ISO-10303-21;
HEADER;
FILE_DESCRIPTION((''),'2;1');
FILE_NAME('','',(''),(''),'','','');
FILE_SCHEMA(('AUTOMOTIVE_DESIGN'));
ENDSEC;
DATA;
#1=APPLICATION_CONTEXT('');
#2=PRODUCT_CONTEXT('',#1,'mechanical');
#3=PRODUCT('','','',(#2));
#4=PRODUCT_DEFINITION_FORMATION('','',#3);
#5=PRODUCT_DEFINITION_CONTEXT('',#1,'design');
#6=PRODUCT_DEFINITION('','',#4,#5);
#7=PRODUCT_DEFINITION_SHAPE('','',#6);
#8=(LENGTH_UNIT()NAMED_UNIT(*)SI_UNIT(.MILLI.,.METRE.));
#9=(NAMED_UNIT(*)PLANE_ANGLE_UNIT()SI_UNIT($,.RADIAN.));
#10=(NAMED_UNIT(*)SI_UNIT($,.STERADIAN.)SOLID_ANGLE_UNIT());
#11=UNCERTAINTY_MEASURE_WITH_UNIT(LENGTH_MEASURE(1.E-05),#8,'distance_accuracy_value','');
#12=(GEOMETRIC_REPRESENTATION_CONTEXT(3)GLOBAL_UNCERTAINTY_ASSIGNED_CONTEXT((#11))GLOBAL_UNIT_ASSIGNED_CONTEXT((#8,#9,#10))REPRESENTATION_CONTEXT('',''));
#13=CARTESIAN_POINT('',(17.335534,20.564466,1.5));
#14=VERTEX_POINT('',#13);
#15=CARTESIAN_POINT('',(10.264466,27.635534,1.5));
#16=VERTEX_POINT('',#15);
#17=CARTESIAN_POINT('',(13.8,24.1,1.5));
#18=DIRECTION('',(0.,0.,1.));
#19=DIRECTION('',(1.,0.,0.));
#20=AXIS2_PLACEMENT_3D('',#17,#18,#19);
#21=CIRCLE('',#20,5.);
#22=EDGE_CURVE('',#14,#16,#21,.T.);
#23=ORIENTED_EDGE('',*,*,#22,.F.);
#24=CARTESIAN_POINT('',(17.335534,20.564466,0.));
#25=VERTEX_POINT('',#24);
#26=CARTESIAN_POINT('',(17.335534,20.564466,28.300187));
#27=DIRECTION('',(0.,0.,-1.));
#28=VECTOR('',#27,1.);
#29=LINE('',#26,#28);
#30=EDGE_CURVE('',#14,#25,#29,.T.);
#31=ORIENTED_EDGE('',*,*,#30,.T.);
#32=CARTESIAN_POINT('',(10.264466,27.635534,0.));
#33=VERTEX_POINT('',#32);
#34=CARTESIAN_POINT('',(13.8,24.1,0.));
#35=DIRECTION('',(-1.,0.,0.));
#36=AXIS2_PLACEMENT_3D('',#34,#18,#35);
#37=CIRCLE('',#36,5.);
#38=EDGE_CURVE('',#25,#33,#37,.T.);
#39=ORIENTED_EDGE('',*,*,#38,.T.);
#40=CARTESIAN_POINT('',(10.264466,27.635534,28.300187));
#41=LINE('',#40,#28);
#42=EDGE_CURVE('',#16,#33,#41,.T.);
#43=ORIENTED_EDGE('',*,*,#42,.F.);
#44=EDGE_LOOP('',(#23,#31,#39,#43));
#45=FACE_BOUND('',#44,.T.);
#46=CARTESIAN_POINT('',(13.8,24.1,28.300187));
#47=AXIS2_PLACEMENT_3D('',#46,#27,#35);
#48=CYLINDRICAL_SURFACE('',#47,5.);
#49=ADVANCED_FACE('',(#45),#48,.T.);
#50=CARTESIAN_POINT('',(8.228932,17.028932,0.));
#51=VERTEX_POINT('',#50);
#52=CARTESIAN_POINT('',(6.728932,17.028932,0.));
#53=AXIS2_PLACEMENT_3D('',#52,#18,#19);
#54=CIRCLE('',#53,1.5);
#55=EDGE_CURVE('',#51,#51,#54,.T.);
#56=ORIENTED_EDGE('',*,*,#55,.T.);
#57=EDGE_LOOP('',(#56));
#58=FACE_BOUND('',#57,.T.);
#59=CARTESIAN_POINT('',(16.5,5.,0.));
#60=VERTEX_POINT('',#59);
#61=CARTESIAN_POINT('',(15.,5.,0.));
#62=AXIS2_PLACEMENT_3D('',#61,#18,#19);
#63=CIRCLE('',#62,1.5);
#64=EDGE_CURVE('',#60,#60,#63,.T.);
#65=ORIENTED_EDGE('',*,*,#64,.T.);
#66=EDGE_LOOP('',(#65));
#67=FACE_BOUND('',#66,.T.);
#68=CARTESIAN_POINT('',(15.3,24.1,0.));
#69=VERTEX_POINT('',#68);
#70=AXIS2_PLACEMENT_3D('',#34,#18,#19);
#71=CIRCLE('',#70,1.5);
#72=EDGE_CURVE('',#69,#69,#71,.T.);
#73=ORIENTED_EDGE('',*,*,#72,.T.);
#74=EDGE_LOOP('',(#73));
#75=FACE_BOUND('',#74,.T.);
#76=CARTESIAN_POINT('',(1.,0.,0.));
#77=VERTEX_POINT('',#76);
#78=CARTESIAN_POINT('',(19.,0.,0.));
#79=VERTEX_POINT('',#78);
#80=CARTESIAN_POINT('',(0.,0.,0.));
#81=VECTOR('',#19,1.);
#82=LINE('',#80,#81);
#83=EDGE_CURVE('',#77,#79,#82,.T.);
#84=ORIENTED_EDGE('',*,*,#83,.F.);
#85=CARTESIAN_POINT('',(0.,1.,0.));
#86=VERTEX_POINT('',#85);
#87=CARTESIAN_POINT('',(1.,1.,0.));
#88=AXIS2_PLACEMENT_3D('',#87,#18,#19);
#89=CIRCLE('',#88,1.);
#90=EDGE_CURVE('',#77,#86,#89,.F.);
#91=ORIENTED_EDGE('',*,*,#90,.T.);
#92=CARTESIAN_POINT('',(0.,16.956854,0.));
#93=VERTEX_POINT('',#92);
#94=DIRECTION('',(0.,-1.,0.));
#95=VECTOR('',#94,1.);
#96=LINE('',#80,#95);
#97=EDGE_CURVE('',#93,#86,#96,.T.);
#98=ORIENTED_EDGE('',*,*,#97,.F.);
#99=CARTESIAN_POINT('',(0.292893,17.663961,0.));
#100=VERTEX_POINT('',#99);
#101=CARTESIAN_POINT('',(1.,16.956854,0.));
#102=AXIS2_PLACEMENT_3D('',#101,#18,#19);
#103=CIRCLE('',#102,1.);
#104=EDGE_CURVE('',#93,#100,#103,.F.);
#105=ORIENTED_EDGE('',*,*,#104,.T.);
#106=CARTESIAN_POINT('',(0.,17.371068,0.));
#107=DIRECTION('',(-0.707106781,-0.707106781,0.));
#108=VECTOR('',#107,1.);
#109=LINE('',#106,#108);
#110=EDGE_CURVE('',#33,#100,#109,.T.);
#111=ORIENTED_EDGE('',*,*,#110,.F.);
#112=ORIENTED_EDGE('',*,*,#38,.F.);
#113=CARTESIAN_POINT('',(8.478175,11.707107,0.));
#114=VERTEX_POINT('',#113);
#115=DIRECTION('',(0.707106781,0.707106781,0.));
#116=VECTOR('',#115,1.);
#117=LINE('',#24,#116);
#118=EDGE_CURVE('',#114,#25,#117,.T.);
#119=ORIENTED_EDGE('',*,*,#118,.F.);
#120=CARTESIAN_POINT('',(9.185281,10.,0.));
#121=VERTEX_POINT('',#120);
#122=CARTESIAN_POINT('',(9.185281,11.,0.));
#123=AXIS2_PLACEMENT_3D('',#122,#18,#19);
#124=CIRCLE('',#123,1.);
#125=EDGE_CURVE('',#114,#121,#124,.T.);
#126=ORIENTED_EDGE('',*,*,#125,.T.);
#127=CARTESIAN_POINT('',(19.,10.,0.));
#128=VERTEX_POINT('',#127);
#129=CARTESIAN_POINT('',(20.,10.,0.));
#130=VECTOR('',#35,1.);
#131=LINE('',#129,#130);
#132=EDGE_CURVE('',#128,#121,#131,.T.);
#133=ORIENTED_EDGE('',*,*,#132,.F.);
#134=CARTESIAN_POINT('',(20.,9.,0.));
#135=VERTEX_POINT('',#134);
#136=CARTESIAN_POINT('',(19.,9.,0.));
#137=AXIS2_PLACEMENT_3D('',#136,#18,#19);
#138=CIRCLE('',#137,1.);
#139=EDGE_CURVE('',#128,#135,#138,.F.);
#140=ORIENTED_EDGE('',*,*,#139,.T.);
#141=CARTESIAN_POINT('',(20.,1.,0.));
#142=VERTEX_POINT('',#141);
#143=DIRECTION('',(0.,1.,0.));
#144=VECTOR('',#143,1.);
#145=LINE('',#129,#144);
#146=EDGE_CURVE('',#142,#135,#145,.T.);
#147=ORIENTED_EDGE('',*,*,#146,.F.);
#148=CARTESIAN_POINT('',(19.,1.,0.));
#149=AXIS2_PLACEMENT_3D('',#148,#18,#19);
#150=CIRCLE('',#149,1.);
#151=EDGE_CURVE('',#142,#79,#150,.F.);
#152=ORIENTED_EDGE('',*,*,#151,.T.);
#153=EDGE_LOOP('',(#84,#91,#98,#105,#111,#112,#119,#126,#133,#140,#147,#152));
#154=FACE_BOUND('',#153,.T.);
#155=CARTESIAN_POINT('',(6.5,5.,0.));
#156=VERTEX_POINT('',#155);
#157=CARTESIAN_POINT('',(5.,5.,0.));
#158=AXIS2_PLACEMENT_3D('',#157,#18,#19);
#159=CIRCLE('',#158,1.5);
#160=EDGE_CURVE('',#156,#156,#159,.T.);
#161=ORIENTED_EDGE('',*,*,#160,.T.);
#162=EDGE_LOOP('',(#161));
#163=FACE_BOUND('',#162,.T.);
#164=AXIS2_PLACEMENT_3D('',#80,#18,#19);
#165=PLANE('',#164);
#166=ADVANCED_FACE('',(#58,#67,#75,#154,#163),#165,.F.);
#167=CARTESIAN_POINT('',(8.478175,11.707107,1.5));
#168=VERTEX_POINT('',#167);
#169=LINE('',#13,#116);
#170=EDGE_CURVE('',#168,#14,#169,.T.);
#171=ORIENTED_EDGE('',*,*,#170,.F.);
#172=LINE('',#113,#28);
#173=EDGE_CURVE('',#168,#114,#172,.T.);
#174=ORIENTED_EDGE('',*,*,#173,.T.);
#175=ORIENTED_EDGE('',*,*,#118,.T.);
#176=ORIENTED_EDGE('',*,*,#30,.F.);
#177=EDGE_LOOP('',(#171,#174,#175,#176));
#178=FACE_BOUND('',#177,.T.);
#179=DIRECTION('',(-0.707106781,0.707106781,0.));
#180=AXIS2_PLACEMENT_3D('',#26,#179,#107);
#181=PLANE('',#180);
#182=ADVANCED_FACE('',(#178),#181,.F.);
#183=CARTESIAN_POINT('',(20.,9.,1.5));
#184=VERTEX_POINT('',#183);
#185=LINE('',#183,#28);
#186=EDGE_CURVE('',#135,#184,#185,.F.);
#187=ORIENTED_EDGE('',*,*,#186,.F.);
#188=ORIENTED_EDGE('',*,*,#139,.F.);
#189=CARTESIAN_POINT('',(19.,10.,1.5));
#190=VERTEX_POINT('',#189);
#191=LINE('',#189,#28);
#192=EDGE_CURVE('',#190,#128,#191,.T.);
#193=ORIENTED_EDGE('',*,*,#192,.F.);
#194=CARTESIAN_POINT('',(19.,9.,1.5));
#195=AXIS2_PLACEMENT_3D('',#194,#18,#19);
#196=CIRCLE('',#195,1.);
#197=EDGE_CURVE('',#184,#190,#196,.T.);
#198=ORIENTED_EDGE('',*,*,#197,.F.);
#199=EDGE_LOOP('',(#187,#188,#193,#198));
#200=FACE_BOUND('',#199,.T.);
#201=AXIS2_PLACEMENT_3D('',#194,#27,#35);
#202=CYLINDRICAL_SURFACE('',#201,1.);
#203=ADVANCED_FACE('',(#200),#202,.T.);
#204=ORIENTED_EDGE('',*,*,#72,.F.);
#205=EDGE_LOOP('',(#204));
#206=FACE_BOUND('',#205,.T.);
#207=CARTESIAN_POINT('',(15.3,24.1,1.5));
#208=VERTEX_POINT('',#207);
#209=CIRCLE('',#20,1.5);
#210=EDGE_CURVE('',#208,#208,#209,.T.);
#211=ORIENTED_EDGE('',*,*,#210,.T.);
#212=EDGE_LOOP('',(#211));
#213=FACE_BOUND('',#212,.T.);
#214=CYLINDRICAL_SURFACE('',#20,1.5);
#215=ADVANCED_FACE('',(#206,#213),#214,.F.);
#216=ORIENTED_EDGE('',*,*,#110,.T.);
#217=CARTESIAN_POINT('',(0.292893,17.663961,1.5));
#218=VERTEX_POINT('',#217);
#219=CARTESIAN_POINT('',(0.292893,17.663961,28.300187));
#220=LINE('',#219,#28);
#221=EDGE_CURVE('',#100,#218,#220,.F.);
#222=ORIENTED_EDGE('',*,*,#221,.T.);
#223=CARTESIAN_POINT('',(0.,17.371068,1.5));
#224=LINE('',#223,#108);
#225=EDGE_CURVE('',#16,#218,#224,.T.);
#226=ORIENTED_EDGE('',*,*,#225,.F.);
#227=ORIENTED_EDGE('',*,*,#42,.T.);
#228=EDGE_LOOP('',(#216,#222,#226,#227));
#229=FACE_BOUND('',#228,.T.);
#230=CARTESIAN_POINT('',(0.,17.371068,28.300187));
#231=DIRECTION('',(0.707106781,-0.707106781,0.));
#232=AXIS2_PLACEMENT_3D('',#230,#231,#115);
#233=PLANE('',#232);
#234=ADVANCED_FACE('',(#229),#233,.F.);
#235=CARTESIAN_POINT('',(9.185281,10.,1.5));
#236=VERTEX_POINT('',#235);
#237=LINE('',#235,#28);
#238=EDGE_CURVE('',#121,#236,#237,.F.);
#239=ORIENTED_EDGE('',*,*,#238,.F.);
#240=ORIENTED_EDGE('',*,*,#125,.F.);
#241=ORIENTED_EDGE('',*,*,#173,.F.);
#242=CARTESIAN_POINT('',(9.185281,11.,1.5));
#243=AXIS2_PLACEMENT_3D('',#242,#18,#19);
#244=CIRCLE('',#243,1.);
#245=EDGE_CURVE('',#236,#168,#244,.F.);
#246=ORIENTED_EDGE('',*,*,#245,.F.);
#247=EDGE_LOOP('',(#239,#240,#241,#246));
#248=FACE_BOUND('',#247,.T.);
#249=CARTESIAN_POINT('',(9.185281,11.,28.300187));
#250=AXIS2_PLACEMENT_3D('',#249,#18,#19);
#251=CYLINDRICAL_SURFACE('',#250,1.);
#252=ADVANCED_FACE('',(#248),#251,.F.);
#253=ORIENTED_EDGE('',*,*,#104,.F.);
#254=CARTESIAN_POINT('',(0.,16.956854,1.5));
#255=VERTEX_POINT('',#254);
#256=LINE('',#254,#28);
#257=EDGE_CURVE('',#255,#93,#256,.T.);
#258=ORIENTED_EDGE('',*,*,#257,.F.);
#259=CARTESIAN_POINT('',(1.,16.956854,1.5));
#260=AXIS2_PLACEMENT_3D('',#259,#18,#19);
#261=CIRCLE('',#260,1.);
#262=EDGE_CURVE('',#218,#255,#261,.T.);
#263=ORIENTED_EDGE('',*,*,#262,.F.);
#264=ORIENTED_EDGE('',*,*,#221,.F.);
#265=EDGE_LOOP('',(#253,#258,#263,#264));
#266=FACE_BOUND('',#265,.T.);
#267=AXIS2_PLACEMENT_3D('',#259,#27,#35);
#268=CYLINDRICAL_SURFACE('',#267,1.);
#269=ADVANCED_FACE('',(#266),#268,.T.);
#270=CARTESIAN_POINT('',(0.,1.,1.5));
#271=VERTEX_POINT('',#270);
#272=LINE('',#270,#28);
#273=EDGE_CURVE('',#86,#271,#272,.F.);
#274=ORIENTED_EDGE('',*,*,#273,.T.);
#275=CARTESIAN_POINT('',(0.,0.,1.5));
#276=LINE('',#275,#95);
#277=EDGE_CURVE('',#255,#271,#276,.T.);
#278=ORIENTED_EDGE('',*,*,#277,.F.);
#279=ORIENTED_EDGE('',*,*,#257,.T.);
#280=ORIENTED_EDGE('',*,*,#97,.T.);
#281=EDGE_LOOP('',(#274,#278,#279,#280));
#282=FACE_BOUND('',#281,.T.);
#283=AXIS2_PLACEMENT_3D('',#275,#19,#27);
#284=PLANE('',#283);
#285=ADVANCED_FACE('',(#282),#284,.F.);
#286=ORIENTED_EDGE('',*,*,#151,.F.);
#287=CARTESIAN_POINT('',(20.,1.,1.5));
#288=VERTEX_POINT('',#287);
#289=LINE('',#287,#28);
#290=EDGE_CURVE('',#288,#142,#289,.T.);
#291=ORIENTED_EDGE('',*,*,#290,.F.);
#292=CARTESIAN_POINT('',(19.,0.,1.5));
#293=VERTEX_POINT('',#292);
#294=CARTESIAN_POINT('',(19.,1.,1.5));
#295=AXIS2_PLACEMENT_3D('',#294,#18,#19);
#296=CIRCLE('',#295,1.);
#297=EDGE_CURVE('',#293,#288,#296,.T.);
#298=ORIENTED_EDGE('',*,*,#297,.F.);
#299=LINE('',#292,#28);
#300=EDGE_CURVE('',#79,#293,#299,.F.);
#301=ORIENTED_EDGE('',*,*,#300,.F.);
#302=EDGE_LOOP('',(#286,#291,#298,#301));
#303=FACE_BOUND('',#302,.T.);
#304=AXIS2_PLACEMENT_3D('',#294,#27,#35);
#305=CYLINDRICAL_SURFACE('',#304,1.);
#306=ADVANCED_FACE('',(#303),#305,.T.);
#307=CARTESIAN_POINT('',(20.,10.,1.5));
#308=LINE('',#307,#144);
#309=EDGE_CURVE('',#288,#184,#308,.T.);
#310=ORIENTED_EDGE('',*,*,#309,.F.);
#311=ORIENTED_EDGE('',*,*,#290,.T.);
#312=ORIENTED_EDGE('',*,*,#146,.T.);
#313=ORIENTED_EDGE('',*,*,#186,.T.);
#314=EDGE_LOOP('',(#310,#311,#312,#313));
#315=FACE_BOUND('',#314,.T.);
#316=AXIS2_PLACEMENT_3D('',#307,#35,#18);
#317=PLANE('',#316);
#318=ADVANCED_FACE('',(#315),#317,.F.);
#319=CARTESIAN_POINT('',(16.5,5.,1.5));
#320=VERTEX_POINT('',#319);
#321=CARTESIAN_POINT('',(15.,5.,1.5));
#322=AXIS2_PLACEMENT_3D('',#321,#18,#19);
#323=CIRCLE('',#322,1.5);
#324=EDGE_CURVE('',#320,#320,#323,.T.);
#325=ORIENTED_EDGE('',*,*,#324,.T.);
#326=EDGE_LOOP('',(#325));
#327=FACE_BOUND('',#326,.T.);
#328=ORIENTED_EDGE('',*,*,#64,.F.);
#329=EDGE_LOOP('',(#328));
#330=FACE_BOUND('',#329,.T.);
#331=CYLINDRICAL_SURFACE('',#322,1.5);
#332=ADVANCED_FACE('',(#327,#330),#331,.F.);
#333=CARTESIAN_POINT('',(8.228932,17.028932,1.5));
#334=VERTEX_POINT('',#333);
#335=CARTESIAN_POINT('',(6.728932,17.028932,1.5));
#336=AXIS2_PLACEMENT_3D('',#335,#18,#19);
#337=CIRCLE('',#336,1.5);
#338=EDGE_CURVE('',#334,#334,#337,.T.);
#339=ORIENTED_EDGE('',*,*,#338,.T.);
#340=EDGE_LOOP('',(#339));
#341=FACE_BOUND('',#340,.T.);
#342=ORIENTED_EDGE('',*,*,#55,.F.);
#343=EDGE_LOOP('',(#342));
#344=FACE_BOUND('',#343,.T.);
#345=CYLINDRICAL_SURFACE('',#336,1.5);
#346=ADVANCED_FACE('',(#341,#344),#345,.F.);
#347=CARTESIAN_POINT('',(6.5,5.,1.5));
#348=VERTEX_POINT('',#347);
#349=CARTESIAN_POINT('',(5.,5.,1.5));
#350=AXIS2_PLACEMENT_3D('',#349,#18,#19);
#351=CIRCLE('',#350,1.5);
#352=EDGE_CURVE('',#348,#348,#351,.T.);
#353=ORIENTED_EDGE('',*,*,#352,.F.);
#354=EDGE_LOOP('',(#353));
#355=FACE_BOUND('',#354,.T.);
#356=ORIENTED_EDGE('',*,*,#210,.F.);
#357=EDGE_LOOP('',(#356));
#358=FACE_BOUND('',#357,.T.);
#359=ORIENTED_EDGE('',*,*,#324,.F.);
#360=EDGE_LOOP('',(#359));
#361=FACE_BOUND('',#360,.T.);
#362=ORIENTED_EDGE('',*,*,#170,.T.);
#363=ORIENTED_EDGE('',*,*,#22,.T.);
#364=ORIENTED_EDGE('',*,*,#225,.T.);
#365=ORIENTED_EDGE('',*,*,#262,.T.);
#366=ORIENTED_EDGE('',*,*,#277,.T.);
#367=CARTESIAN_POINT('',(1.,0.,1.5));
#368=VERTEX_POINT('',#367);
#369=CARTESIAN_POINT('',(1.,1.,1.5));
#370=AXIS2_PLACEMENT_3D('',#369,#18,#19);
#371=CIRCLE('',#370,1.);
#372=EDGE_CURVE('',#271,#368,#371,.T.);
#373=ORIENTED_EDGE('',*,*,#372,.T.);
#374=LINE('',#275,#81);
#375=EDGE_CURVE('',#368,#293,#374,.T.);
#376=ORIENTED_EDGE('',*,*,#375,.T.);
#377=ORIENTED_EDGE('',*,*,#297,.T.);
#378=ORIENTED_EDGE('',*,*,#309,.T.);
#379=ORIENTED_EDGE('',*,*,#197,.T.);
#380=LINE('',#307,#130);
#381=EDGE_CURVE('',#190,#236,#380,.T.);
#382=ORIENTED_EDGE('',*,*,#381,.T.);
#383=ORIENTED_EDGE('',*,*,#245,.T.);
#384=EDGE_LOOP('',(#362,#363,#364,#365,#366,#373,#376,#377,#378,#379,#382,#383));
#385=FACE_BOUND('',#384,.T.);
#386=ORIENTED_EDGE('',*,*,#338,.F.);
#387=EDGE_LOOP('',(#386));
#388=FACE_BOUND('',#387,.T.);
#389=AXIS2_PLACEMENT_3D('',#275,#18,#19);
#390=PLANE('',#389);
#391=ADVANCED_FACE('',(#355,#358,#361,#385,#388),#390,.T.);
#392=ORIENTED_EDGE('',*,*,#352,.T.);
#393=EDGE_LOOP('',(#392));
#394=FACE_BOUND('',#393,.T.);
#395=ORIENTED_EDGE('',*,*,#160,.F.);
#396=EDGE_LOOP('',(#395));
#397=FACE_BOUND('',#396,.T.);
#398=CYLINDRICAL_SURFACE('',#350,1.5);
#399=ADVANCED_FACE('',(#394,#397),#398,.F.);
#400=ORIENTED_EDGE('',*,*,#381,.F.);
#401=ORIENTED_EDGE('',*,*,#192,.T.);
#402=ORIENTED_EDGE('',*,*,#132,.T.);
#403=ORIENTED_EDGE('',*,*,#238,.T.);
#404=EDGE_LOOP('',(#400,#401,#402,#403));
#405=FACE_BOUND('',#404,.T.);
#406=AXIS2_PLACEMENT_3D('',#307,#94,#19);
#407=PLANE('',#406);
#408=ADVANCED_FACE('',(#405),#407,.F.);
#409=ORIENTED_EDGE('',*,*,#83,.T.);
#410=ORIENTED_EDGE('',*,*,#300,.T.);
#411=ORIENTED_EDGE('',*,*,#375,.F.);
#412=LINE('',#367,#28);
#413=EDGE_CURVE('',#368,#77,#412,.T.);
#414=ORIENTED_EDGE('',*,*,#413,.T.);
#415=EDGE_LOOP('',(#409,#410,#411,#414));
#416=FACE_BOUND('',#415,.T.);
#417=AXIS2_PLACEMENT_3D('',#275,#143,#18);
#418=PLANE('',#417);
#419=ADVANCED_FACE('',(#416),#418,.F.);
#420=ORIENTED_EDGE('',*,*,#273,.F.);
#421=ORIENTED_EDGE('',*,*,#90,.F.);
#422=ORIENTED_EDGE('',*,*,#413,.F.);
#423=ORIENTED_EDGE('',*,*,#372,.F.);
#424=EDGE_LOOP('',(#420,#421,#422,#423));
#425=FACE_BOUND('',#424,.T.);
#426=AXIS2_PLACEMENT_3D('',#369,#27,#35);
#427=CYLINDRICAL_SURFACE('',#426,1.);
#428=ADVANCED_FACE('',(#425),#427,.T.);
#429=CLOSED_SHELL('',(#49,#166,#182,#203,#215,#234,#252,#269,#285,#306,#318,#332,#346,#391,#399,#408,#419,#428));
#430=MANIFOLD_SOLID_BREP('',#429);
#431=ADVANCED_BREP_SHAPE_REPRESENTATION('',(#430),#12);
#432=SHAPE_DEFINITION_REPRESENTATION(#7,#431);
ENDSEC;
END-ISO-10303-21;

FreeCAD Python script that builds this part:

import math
import FreeCAD as App
import Part
import Sketcher
Q = App.Units.Quantity


def edges_at(feature, points):
    """Names of the edges that pass closest to the given points."""
    edges = feature.Shape.Edges
    near = lambda p: min(range(len(edges)), key=lambda i: edges[i].distToShape(Part.Vertex(*p))[0])
    return sorted({f"Edge{near(p) + 1}" for p in points})


def add_polygon(sketch, points):
    """Adds a closed chain of lines whose ends are joined by coincident constraints."""
    first, n = sketch.GeometryCount, len(points)
    for a, b in zip(points, points[1:] + points[:1]):
        sketch.addGeometry(Part.LineSegment(App.Vector(*a, 0), App.Vector(*b, 0)), False)
    for i in range(n):
        sketch.addConstraint(Sketcher.Constraint("Coincident", first + i, 2, first + (i + 1) % n, 1))

doc = App.newDocument("Part")
params = doc.addObject("Spreadsheet::Sheet", "Params")
for row, (alias, value) in enumerate([
    ("sketch1_width", "20 mm"),
    ("sketch1_height", "10 mm"),
    ("pad1_length", "1.5 mm"),
    ("sketch2_diameter", "3 mm"),
    ("hole_diameter", "3 mm"),
    ("sketch3_radius", "5 mm"),
    ("pad2_length", "1.5 mm"),
    ("sketch4_diameter", "3 mm"),
    ("hole2_diameter", "3 mm"),
    ("fillet_radius", "1 mm"),
], start=1):
    params.set(f"A{row}", alias)
    params.set(f"B{row}", "=" + value)
    params.setAlias(f"B{row}", alias)

body = doc.addObject("PartDesign::Body", "Body")

# Sketch on XY plane
sketch1 = body.newObject("Sketcher::SketchObject", "Sketch")
sketch1.AttachmentSupport = (doc.getObject("XY_Plane"), [""])
sketch1.MapMode = "FlatFace"
add_polygon(sketch1, [(0, 10), (0, 0), (20, 0), (20, 10)])  # lines 0-3
sketch1.addConstraint(Sketcher.Constraint("Vertical", 0))
sketch1.addConstraint(Sketcher.Constraint("Horizontal", 1))
sketch1.addConstraint(Sketcher.Constraint("Vertical", 2))
sketch1.addConstraint(Sketcher.Constraint("Horizontal", 3))
sketch1.addConstraint(Sketcher.Constraint("Coincident", 0, 2, -1, 1))
sketch1.addConstraint(Sketcher.Constraint("DistanceX", 1, 1, 1, 2, 20.0))
sketch1.addConstraint(Sketcher.Constraint("DistanceY", 0, 2, 0, 1, 10.0))
sketch1.setExpression("Constraints[9]", "Params.sketch1_width")
sketch1.setExpression("Constraints[10]", "Params.sketch1_height")
pad1 = body.newObject("PartDesign::Pad", "Pad")
pad1.Profile = sketch1
pad1.setExpression("Length", "Params.pad1_length")

# Sketch on XY plane
sketch2 = body.newObject("Sketcher::SketchObject", "Sketch001")
sketch2.AttachmentSupport = (doc.getObject("XY_Plane"), [""])
sketch2.MapMode = "FlatFace"
sketch2.AttachmentOffset = App.Placement(App.Vector(0, 0, 1.5), App.Rotation())
sketch2.addGeometry(Part.Circle(App.Vector(5, 5, 0), App.Vector(0, 0, 1), 1.5), False)
sketch2.addGeometry(Part.Circle(App.Vector(15, 5, 0), App.Vector(0, 0, 1), 1.5), False)
sketch2.addConstraint(Sketcher.Constraint("Equal", 0, 1))
sketch2.addConstraint(Sketcher.Constraint("Horizontal", 0, 3, 1, 3))
sketch2.addConstraint(Sketcher.Constraint("Diameter", 0, 3.0))
sketch2.addConstraint(Sketcher.Constraint("DistanceX", -1, 1, 0, 3, 5.0))
sketch2.addConstraint(Sketcher.Constraint("DistanceY", -1, 1, 0, 3, 5.0))
sketch2.addConstraint(Sketcher.Constraint("DistanceX", -1, 1, 1, 3, 15.0))
sketch2.setExpression("Constraints[2]", "Params.sketch2_diameter")
doc.recompute()
hole = body.newObject("PartDesign::Hole", "Hole")
hole.Profile = sketch2
hole.ThreadType = "None"
hole.setExpression("Diameter", "Params.hole_diameter")
hole.DepthType = "ThroughAll"

# Sketch on XY plane
sketch3 = body.newObject("Sketcher::SketchObject", "Sketch002")
sketch3.AttachmentSupport = (doc.getObject("XY_Plane"), [""])
sketch3.MapMode = "FlatFace"
sketch3.addGeometry(Part.LineSegment(App.Vector(0, 17, 0), App.Vector(0, 10, 0)), False)
sketch3.addGeometry(Part.LineSegment(App.Vector(0, 10, 0), App.Vector(7, 10, 0)), False)
sketch3.addGeometry(Part.LineSegment(App.Vector(7, 10, 0), App.Vector(17, 21, 0)), False)
sketch3.addGeometry(Part.ArcOfCircle(Part.Circle(App.Vector(14, 24, 0), App.Vector(0, 0, 1), 5), math.radians(-45), math.radians(135)), False)
sketch3.addGeometry(Part.LineSegment(App.Vector(10, 28, 0), App.Vector(0, 17, 0)), False)
sketch3.addConstraint(Sketcher.Constraint("Coincident", 0, 2, 1, 1))
sketch3.addConstraint(Sketcher.Constraint("Coincident", 1, 2, 2, 1))
sketch3.addConstraint(Sketcher.Constraint("Tangent", 2, 2, 3, 1))
sketch3.addConstraint(Sketcher.Constraint("Tangent", 3, 2, 4, 1))
sketch3.addConstraint(Sketcher.Constraint("Coincident", 4, 2, 0, 1))
sketch3.addConstraint(Sketcher.Constraint("Vertical", 0))
sketch3.addConstraint(Sketcher.Constraint("Horizontal", 1))
sketch3.addConstraint(Sketcher.Constraint("PointOnObject", 0, 2, -2))
sketch3.addConstraint(Sketcher.Constraint("Parallel", 2, 4))
sketch3.addConstraint(Sketcher.Constraint("Radius", 3, 5.0))
sketch3.addConstraint(Sketcher.Constraint("Angle", 2, Q("45 deg")))
sketch3.addConstraint(Sketcher.Constraint("DistanceY", -1, 1, 0, 2, 10.0))
sketch3.addConstraint(Sketcher.Constraint("DistanceX", -1, 1, 3, 3, 13.8))
sketch3.addConstraint(Sketcher.Constraint("DistanceY", -1, 1, 3, 3, 24.1))
sketch3.setExpression("Constraints[9]", "Params.sketch3_radius")
pad2 = body.newObject("PartDesign::Pad", "Pad001")
pad2.Profile = sketch3
pad2.setExpression("Length", "Params.pad2_length")

# Sketch on XY plane
sketch4 = body.newObject("Sketcher::SketchObject", "Sketch003")
sketch4.AttachmentSupport = (doc.getObject("XY_Plane"), [""])
sketch4.MapMode = "FlatFace"
sketch4.AttachmentOffset = App.Placement(App.Vector(0, 0, 1.5), App.Rotation())
sketch4.addGeometry(Part.Circle(App.Vector(13.8, 24.1, 0), App.Vector(0, 0, 1), 1.5), False)
sketch4.addGeometry(Part.Circle(App.Vector(6.7, 17, 0), App.Vector(0, 0, 1), 1.5), False)
sketch4.addConstraint(Sketcher.Constraint("Equal", 0, 1))
sketch4.addConstraint(Sketcher.Constraint("Diameter", 0, 3.0))
sketch4.addConstraint(Sketcher.Constraint("DistanceX", -1, 1, 0, 3, 13.8))
sketch4.addConstraint(Sketcher.Constraint("DistanceY", -1, 1, 0, 3, 24.1))
sketch4.addConstraint(Sketcher.Constraint("DistanceX", -1, 1, 1, 3, 6.728932))
sketch4.addConstraint(Sketcher.Constraint("DistanceY", -1, 1, 1, 3, 17.028932))
sketch4.setExpression("Constraints[1]", "Params.sketch4_diameter")
doc.recompute()
hole2 = body.newObject("PartDesign::Hole", "Hole001")
hole2.Profile = sketch4
hole2.ThreadType = "None"
hole2.setExpression("Diameter", "Params.hole2_diameter")
hole2.DepthType = "ThroughAll"
doc.recompute()

fillet = body.newObject("PartDesign::Fillet", "Fillet")
fillet.Base = (hole2, edges_at(hole2, [
    (0, 0, 0.75),
    (20, 0, 0.75),
    (20, 10, 0.75),
    (6.771, 10, 0.75),
    (0, 17.371, 0.75),
]))
fillet.setExpression("Radius", "Params.fillet_radius")

doc.recompute()
